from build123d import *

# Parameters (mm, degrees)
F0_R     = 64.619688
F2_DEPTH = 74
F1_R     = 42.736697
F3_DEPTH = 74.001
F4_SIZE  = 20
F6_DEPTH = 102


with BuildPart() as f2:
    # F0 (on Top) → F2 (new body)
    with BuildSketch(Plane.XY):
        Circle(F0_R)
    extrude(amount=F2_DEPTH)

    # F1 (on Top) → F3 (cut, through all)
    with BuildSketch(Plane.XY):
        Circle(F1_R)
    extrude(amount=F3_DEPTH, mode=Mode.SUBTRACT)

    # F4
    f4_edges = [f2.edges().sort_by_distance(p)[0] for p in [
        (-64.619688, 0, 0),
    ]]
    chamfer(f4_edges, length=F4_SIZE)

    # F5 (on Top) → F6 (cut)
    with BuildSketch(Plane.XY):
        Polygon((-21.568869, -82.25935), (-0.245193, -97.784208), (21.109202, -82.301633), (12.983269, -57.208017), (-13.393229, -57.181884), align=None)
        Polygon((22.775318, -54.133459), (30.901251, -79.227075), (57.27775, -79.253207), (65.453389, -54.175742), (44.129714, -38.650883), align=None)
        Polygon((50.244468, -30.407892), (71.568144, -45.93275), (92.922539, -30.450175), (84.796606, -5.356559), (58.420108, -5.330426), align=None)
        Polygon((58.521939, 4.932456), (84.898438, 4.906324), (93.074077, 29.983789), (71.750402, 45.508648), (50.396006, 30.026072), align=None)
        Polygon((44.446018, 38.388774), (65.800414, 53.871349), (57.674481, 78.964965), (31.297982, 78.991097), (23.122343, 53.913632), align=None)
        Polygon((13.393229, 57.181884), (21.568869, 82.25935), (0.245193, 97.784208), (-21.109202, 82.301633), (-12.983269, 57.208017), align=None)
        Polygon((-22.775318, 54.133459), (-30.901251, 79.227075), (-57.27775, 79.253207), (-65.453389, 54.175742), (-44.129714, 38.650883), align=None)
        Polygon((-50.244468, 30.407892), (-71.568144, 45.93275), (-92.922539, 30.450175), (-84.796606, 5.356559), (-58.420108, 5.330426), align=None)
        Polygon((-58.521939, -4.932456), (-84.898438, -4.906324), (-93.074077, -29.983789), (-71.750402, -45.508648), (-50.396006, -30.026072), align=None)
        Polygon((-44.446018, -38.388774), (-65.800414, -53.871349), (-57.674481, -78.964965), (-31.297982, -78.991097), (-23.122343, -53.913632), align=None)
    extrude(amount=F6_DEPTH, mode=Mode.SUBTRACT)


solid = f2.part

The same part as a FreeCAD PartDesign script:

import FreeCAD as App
import Part
import Sketcher


def edges_at(feature, points):
    """Names of the edges that pass closest to the given points."""
    edges = feature.Shape.Edges
    near = lambda p: min(range(len(edges)), key=lambda i: edges[i].distToShape(Part.Vertex(*p))[0])
    return sorted({f"Edge{near(p) + 1}" for p in points})

doc = App.newDocument("Part")
params = doc.addObject("Spreadsheet::Sheet", "Params")
for row, (alias, value) in enumerate([
    ("pad1_length", "74 mm"),
    ("chamfer_size", "20 mm"),
    ("pocket2_length", "102 mm"),
], start=1):
    params.set(f"A{row}", alias)
    params.set(f"B{row}", "=" + value)
    params.setAlias(f"B{row}", alias)

body = doc.addObject("PartDesign::Body", "Body")

# Sketch on XY plane
sketch1 = doc.addObject("Sketcher::SketchObject", "Sketch")
body.addObject(sketch1)
sketch1.AttachmentSupport = (doc.XY_Plane, [""])
sketch1.MapMode = "FlatFace"
sketch1.addGeometry(Part.Circle(App.Vector(0, 0, 0), App.Vector(0, 0, 1), 65), False)
sketch1.addConstraint([
    Sketcher.Constraint("Coincident", 0, 3, -1, 1),
    Sketcher.Constraint("Diameter", 0, 129.239376),
])
pad1 = doc.addObject("PartDesign::Pad", "Pad")
body.addObject(pad1)
pad1.Profile = sketch1
pad1.setExpression("Length", "Params.pad1_length")

# Sketch on XY plane
sketch2 = doc.addObject("Sketcher::SketchObject", "Sketch001")
body.addObject(sketch2)
sketch2.AttachmentSupport = (doc.XY_Plane, [""])
sketch2.MapMode = "FlatFace"
sketch2.addGeometry(Part.Circle(App.Vector(0, 0, 0), App.Vector(0, 0, 1), 43), False)
sketch2.addConstraint([
    Sketcher.Constraint("Coincident", 0, 3, -1, 1),
    Sketcher.Constraint("Diameter", 0, 85.473394),
])
pocket1 = doc.addObject("PartDesign::Pocket", "Pocket")
body.addObject(pocket1)
pocket1.Profile = sketch2
pocket1.Type = "ThroughAll"
pocket1.Reversed = True
doc.recompute()

chamfer = doc.addObject("PartDesign::Chamfer", "Chamfer")
body.addObject(chamfer)
chamfer.Base = (pocket1, edges_at(pocket1, [(-64.62, 0, 0)]))
chamfer.setExpression("Size", "Params.chamfer_size")

# Sketch on XY plane
sketch3 = doc.addObject("Sketcher::SketchObject", "Sketch002")
body.addObject(sketch3)
sketch3.AttachmentSupport = (doc.XY_Plane, [""])
sketch3.MapMode = "FlatFace"
sketch3.addGeometry([
    Part.LineSegment(App.Vector(-22, -82, 0), App.Vector(0, -98, 0)),  # 0
    Part.LineSegment(App.Vector(0, -98, 0), App.Vector(21, -82, 0)),  # 1
    Part.LineSegment(App.Vector(21, -82, 0), App.Vector(13, -57, 0)),  # 2
    Part.LineSegment(App.Vector(13, -57, 0), App.Vector(-13, -57, 0)),  # 3
    Part.LineSegment(App.Vector(-13, -57, 0), App.Vector(-22, -82, 0)),  # 4
    Part.LineSegment(App.Vector(23, -54, 0), App.Vector(31, -79, 0)),  # 5
    Part.LineSegment(App.Vector(31, -79, 0), App.Vector(57, -79, 0)),  # 6
    Part.LineSegment(App.Vector(57, -79, 0), App.Vector(65, -54, 0)),  # 7
    Part.LineSegment(App.Vector(65, -54, 0), App.Vector(44, -39, 0)),  # 8
    Part.LineSegment(App.Vector(44, -39, 0), App.Vector(23, -54, 0)),  # 9
    Part.LineSegment(App.Vector(50, -30, 0), App.Vector(72, -46, 0)),  # 10
    Part.LineSegment(App.Vector(72, -46, 0), App.Vector(93, -30, 0)),  # 11
    Part.LineSegment(App.Vector(93, -30, 0), App.Vector(85, -5, 0)),  # 12
    Part.LineSegment(App.Vector(85, -5, 0), App.Vector(58, -5, 0)),  # 13
    Part.LineSegment(App.Vector(58, -5, 0), App.Vector(50, -30, 0)),  # 14
    Part.LineSegment(App.Vector(59, 5, 0), App.Vector(85, 5, 0)),  # 15
    Part.LineSegment(App.Vector(85, 5, 0), App.Vector(93, 30, 0)),  # 16
    Part.LineSegment(App.Vector(93, 30, 0), App.Vector(72, 46, 0)),  # 17
    Part.LineSegment(App.Vector(72, 46, 0), App.Vector(50, 30, 0)),  # 18
    Part.LineSegment(App.Vector(50, 30, 0), App.Vector(59, 5, 0)),  # 19
    Part.LineSegment(App.Vector(44, 38, 0), App.Vector(66, 54, 0)),  # 20
    Part.LineSegment(App.Vector(66, 54, 0), App.Vector(58, 79, 0)),  # 21
    Part.LineSegment(App.Vector(58, 79, 0), App.Vector(31, 79, 0)),  # 22
    Part.LineSegment(App.Vector(31, 79, 0), App.Vector(23, 54, 0)),  # 23
    Part.LineSegment(App.Vector(23, 54, 0), App.Vector(44, 38, 0)),  # 24
    Part.LineSegment(App.Vector(13, 57, 0), App.Vector(22, 82, 0)),  # 25
    Part.LineSegment(App.Vector(22, 82, 0), App.Vector(0, 98, 0)),  # 26
    Part.LineSegment(App.Vector(0, 98, 0), App.Vector(-21, 82, 0)),  # 27
    Part.LineSegment(App.Vector(-21, 82, 0), App.Vector(-13, 57, 0)),  # 28
    Part.LineSegment(App.Vector(-13, 57, 0), App.Vector(13, 57, 0)),  # 29
    Part.LineSegment(App.Vector(-23, 54, 0), App.Vector(-31, 79, 0)),  # 30
    Part.LineSegment(App.Vector(-31, 79, 0), App.Vector(-57, 79, 0)),  # 31
    Part.LineSegment(App.Vector(-57, 79, 0), App.Vector(-65, 54, 0)),  # 32
    Part.LineSegment(App.Vector(-65, 54, 0), App.Vector(-44, 39, 0)),  # 33
    Part.LineSegment(App.Vector(-44, 39, 0), App.Vector(-23, 54, 0)),  # 34
    Part.LineSegment(App.Vector(-50, 30, 0), App.Vector(-72, 46, 0)),  # 35
    Part.LineSegment(App.Vector(-72, 46, 0), App.Vector(-93, 30, 0)),  # 36
    Part.LineSegment(App.Vector(-93, 30, 0), App.Vector(-85, 5, 0)),  # 37
    Part.LineSegment(App.Vector(-85, 5, 0), App.Vector(-58, 5, 0)),  # 38
    Part.LineSegment(App.Vector(-58, 5, 0), App.Vector(-50, 30, 0)),  # 39
    Part.LineSegment(App.Vector(-59, -5, 0), App.Vector(-85, -5, 0)),  # 40
    Part.LineSegment(App.Vector(-85, -5, 0), App.Vector(-93, -30, 0)),  # 41
    Part.LineSegment(App.Vector(-93, -30, 0), App.Vector(-72, -46, 0)),  # 42
    Part.LineSegment(App.Vector(-72, -46, 0), App.Vector(-50, -30, 0)),  # 43
    Part.LineSegment(App.Vector(-50, -30, 0), App.Vector(-59, -5, 0)),  # 44
    Part.LineSegment(App.Vector(-44, -38, 0), App.Vector(-66, -54, 0)),  # 45
    Part.LineSegment(App.Vector(-66, -54, 0), App.Vector(-58, -79, 0)),  # 46
    Part.LineSegment(App.Vector(-58, -79, 0), App.Vector(-31, -79, 0)),  # 47
    Part.LineSegment(App.Vector(-31, -79, 0), App.Vector(-23, -54, 0)),  # 48
    Part.LineSegment(App.Vector(-23, -54, 0), App.Vector(-44, -38, 0)),  # 49
], False)
sketch3.addConstraint([
    Sketcher.Constraint("Coincident", 0, 2, 1, 1),
    Sketcher.Constraint("Coincident", 1, 2, 2, 1),
    Sketcher.Constraint("Coincident", 2, 2, 3, 1),
    Sketcher.Constraint("Coincident", 3, 2, 4, 1),
    Sketcher.Constraint("Coincident", 4, 2, 0, 1),
    Sketcher.Constraint("Coincident", 5, 2, 6, 1),
    Sketcher.Constraint("Coincident", 6, 2, 7, 1),
    Sketcher.Constraint("Coincident", 7, 2, 8, 1),
    Sketcher.Constraint("Coincident", 8, 2, 9, 1),
    Sketcher.Constraint("Coincident", 9, 2, 5, 1),
    Sketcher.Constraint("Coincident", 10, 2, 11, 1),
    Sketcher.Constraint("Coincident", 11, 2, 12, 1),
    Sketcher.Constraint("Coincident", 12, 2, 13, 1),
    Sketcher.Constraint("Coincident", 13, 2, 14, 1),
    Sketcher.Constraint("Coincident", 14, 2, 10, 1),
    Sketcher.Constraint("Coincident", 15, 2, 16, 1),
    Sketcher.Constraint("Coincident", 16, 2, 17, 1),
    Sketcher.Constraint("Coincident", 17, 2, 18, 1),
    Sketcher.Constraint("Coincident", 18, 2, 19, 1),
    Sketcher.Constraint("Coincident", 19, 2, 15, 1),
    Sketcher.Constraint("Coincident", 20, 2, 21, 1),
    Sketcher.Constraint("Coincident", 21, 2, 22, 1),
    Sketcher.Constraint("Coincident", 22, 2, 23, 1),
    Sketcher.Constraint("Coincident", 23, 2, 24, 1),
    Sketcher.Constraint("Coincident", 24, 2, 20, 1),
    Sketcher.Constraint("Coincident", 25, 2, 26, 1),
    Sketcher.Constraint("Coincident", 26, 2, 27, 1),
    Sketcher.Constraint("Coincident", 27, 2, 28, 1),
    Sketcher.Constraint("Coincident", 28, 2, 29, 1),
    Sketcher.Constraint("Coincident", 29, 2, 25, 1),
    Sketcher.Constraint("Coincident", 30, 2, 31, 1),
    Sketcher.Constraint("Coincident", 31, 2, 32, 1),
    Sketcher.Constraint("Coincident", 32, 2, 33, 1),
    Sketcher.Constraint("Coincident", 33, 2, 34, 1),
    Sketcher.Constraint("Coincident", 34, 2, 30, 1),
    Sketcher.Constraint("Coincident", 35, 2, 36, 1),
    Sketcher.Constraint("Coincident", 36, 2, 37, 1),
    Sketcher.Constraint("Coincident", 37, 2, 38, 1),
    Sketcher.Constraint("Coincident", 38, 2, 39, 1),
    Sketcher.Constraint("Coincident", 39, 2, 35, 1),
    Sketcher.Constraint("Coincident", 40, 2, 41, 1),
    Sketcher.Constraint("Coincident", 41, 2, 42, 1),
    Sketcher.Constraint("Coincident", 42, 2, 43, 1),
    Sketcher.Constraint("Coincident", 43, 2, 44, 1),
    Sketcher.Constraint("Coincident", 44, 2, 40, 1),
    Sketcher.Constraint("Coincident", 45, 2, 46, 1),
    Sketcher.Constraint("Coincident", 46, 2, 47, 1),
    Sketcher.Constraint("Coincident", 47, 2, 48, 1),
    Sketcher.Constraint("Coincident", 48, 2, 49, 1),
    Sketcher.Constraint("Coincident", 49, 2, 45, 1),
    Sketcher.Constraint("Symmetric", 4, 2, 25, 2, -1, 1),
    Sketcher.Constraint("Symmetric", 0, 2, 26, 2, -1, 1),
    Sketcher.Constraint("Symmetric", 1, 2, 27, 2, -1, 1),
    Sketcher.Constraint("Symmetric", 2, 2, 28, 2, -1, 1),
    Sketcher.Constraint("Symmetric", 3, 2, 29, 2, -1, 1),
    Sketcher.Constraint("Symmetric", 5, 2, 30, 2, -1, 1),
    Sketcher.Constraint("Symmetric", 6, 2, 31, 2, -1, 1),
    Sketcher.Constraint("Symmetric", 7, 2, 32, 2, -1, 1),
    Sketcher.Constraint("Symmetric", 8, 2, 33, 2, -1, 1),
    Sketcher.Constraint("Symmetric", 9, 2, 34, 2, -1, 1),
    Sketcher.Constraint("Symmetric", 10, 2, 35, 2, -1, 1),
    Sketcher.Constraint("Symmetric", 11, 2, 36, 2, -1, 1),
    Sketcher.Constraint("Symmetric", 12, 2, 37, 2, -1, 1),
    Sketcher.Constraint("Symmetric", 13, 2, 38, 2, -1, 1),
    Sketcher.Constraint("Symmetric", 14, 2, 39, 2, -1, 1),
    Sketcher.Constraint("Symmetric", 15, 2, 40, 2, -1, 1),
    Sketcher.Constraint("Symmetric", 16, 2, 41, 2, -1, 1),
    Sketcher.Constraint("Symmetric", 17, 2, 42, 2, -1, 1),
    Sketcher.Constraint("Symmetric", 18, 2, 43, 2, -1, 1),
    Sketcher.Constraint("Symmetric", 19, 2, 44, 2, -1, 1),
    Sketcher.Constraint("Symmetric", 20, 2, 45, 2, -1, 1),
    Sketcher.Constraint("Symmetric", 21, 2, 46, 2, -1, 1),
    Sketcher.Constraint("Symmetric", 22, 2, 47, 2, -1, 1),
    Sketcher.Constraint("Symmetric", 23, 2, 48, 2, -1, 1),
    Sketcher.Constraint("Symmetric", 24, 2, 49, 2, -1, 1),
    Sketcher.Constraint("Parallel", 2, 5),
    Sketcher.Constraint("Parallel", 3, 6),
    Sketcher.Constraint("Parallel", 4, 7),
    Sketcher.Constraint("Parallel", 0, 8),
    Sketcher.Constraint("Parallel", 1, 9),
    Sketcher.Constraint("Parallel", 8, 10),
    Sketcher.Constraint("Parallel", 9, 11),
    Sketcher.Constraint("Parallel", 5, 12),
    Sketcher.Constraint("Parallel", 6, 13),
    Sketcher.Constraint("Parallel", 7, 14),
    Sketcher.Constraint("Parallel", 13, 15),
    Sketcher.Constraint("Parallel", 14, 16),
    Sketcher.Constraint("Parallel", 10, 17),
    Sketcher.Constraint("Parallel", 11, 18),
    Sketcher.Constraint("Parallel", 12, 19),
    Sketcher.Constraint("Parallel", 18, 20),
    Sketcher.Constraint("Parallel", 19, 21),
    Sketcher.Constraint("Parallel", 15, 22),
    Sketcher.Constraint("Parallel", 16, 23),
    Sketcher.Constraint("Parallel", 17, 24),
    Sketcher.Constraint("Equal", 0, 1),
    Sketcher.Constraint("Equal", 1, 2),
    Sketcher.Constraint("Equal", 2, 3),
    Sketcher.Constraint("Equal", 3, 4),
    Sketcher.Constraint("Equal", 4, 5),
    Sketcher.Constraint("Equal", 5, 6),
    Sketcher.Constraint("Equal", 6, 7),
    Sketcher.Constraint("Equal", 9, 10),
    Sketcher.Constraint("Equal", 10, 11),
    Sketcher.Constraint("Equal", 11, 12),
    Sketcher.Constraint("Equal", 14, 15),
    Sketcher.Constraint("Equal", 15, 16),
    Sketcher.Constraint("Equal", 16, 17),
    Sketcher.Constraint("Equal", 19, 20),
    Sketcher.Constraint("Equal", 20, 21),
    Sketcher.Constraint("Equal", 21, 22),
    Sketcher.Constraint("DistanceY", 0, 2, 6, 2, 18.531001),
    Sketcher.Constraint("DistanceY", 20, 2, 25, 2, 28.388001),
    Sketcher.Constraint("DistanceX", -1, 1, 1, 2, 21.109202),
    Sketcher.Constraint("DistanceX", -1, 1, 17, 2, 71.750402),
    Sketcher.Constraint("DistanceX", 5, 2, 6, 2, 26.376499),
    Sketcher.Constraint("DistanceX", 15, 2, 11, 2, 8.024101),
    Sketcher.Constraint("DistanceY", 11, 2, 15, 2, 35.356499),
    Sketcher.Constraint("DistanceY", 17, 2, 20, 2, 8.362701),
    Sketcher.Constraint("DistanceY", 0, 2, -1, 1, 97.784208),
    Sketcher.Constraint("DistanceX", -1, 1, 2, 2, 12.983269),
    Sketcher.Constraint("DistanceX", 4, 2, -1, 1, 21.568869),
    Sketcher.Constraint("DistanceY", 4, 2, -1, 1, 82.25935),
    Sketcher.Constraint("DistanceX", -1, 1, 5, 2, 30.901251),
    Sketcher.Constraint("DistanceX", -1, 1, 21, 2, 57.674481),
])
pocket2 = doc.addObject("PartDesign::Pocket", "Pocket001")
body.addObject(pocket2)
pocket2.Profile = sketch3
pocket2.setExpression("Length", "Params.pocket2_length")
pocket2.Reversed = True

doc.recompute()
